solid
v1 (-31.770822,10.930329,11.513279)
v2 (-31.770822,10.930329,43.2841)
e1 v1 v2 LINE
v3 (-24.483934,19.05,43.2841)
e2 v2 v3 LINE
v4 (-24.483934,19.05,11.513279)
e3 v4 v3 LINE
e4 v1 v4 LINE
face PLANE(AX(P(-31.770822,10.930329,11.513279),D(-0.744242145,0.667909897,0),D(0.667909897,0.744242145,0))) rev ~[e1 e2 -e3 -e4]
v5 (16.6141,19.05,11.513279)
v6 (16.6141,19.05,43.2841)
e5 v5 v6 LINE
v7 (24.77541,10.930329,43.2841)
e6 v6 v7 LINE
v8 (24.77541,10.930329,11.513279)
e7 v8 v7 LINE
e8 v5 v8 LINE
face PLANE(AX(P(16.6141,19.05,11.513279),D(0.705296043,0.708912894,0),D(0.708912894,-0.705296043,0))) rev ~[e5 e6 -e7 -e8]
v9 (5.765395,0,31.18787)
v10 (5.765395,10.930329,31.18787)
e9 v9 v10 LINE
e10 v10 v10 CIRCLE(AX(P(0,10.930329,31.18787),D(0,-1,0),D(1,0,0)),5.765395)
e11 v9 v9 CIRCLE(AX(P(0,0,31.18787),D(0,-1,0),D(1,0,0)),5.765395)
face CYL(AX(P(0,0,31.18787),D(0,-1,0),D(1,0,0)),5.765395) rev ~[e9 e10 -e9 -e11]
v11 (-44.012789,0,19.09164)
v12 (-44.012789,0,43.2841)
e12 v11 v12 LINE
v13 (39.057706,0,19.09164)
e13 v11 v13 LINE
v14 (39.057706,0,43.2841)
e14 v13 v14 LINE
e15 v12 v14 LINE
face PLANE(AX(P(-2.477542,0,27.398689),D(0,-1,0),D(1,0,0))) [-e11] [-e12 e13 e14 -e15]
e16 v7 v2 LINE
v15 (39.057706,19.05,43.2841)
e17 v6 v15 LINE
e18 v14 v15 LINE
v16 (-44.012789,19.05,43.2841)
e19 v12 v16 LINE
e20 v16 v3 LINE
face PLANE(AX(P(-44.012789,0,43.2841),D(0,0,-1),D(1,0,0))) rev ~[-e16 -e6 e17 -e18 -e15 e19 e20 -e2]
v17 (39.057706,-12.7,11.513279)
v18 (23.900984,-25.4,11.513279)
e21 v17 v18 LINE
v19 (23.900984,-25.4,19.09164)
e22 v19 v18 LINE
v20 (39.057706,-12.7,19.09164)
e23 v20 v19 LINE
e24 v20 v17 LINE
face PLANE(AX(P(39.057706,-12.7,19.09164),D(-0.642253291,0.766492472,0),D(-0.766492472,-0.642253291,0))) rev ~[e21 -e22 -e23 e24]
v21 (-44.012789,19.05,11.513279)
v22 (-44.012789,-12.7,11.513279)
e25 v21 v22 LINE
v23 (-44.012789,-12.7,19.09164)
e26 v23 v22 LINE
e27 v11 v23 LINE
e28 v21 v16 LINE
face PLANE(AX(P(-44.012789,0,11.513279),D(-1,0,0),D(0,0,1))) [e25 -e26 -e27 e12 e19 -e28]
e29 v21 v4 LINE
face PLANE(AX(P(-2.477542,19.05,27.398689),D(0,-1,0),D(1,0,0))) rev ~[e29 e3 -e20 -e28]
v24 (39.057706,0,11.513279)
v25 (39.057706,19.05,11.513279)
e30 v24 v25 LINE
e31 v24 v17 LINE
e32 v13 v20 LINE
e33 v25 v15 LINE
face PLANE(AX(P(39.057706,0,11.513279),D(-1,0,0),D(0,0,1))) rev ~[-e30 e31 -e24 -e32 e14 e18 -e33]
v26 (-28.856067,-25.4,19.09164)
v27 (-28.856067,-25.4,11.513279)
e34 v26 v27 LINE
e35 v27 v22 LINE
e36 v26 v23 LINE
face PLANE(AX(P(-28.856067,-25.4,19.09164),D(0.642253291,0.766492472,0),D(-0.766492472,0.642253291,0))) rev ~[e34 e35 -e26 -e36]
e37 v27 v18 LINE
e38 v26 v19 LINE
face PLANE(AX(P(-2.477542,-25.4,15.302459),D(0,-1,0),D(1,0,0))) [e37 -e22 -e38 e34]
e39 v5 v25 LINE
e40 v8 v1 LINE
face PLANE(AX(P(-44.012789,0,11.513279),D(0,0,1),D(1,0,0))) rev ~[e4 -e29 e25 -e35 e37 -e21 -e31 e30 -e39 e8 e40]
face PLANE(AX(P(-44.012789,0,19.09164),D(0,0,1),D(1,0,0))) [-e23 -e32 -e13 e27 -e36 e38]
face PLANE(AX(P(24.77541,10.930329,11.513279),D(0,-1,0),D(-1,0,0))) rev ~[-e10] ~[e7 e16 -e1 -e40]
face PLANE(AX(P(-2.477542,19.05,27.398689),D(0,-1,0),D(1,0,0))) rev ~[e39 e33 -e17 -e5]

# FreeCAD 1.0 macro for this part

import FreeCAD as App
import Part
import Sketcher
from FreeCAD import Vector
Q = App.Units.Quantity

doc = App.newDocument("Part")
params = doc.addObject("Spreadsheet::Sheet", "Params")
for row, (alias, value) in enumerate([
    ("pad1_length", "0.75 in"),
    ("pocket1_length", "1.38 in"),
    ("pad2_length", "1 in"),
    ("sketch4_height", "0.5 in"),
    ("pocket2_length", "1 in"),
    ("pocket3_length", "1 in"),
], start=1):
    params.set(f"A{row}", alias)
    params.set(f"B{row}", "=" + value)
    params.setAlias(f"B{row}", alias)

body = doc.addObject("PartDesign::Body", "Body")

# Sketch on XZ plane
sketch1 = body.newObject("Sketcher::SketchObject", "Sketch")
sketch1.AttachmentSupport = (doc.getObject("XZ_Plane"), [""])
sketch1.MapMode = "FlatFace"
sketch1.addGeometry([
    Part.LineSegment(Vector(-44.012789, 43.2841, 0), Vector(-44.012789, 11.513279, 0)),
    Part.LineSegment(Vector(-44.012789, 11.513279, 0), Vector(39.057706, 11.513279, 0)),
    Part.LineSegment(Vector(39.057706, 11.513279, 0), Vector(39.057706, 43.2841, 0)),
    Part.LineSegment(Vector(39.057706, 43.2841, 0), Vector(-44.012789, 43.2841, 0)),
], False)
sketch1.addConstraint([
    Sketcher.Constraint("Coincident", 0, 2, 1, 1),
    Sketcher.Constraint("Coincident", 1, 2, 2, 1),
    Sketcher.Constraint("Coincident", 2, 2, 3, 1),
    Sketcher.Constraint("Coincident", 3, 2, 0, 1),
    Sketcher.Constraint("Vertical", 0),
    Sketcher.Constraint("Horizontal", 1),
    Sketcher.Constraint("Vertical", 2),
    Sketcher.Constraint("Horizontal", 3),
    Sketcher.Constraint("DistanceY", 0, 2, 0, 1, Q("31.770821 mm")),
    Sketcher.Constraint("DistanceY", -1, 1, 2, 2, Q("43.2841 mm")),
    Sketcher.Constraint("DistanceX", 1, 1, 1, 2, Q("83.070494 mm")),
    Sketcher.Constraint("DistanceX", 0, 2, -1, 1, Q("44.012789 mm")),
])
pad1 = body.newObject("PartDesign::Pad", "Pad")
pad1.Profile = sketch1
pad1.setExpression("Length", "Params.pad1_length")
pad1.Reversed = True

# Sketch on XY plane
sketch2 = body.newObject("Sketcher::SketchObject", "Sketch001")
sketch2.AttachmentSupport = (doc.getObject("XY_Plane"), [""])
sketch2.MapMode = "FlatFace"
sketch2.AttachmentOffset = App.Placement(Vector(0, 0, 11.513279), App.Rotation())
sketch2.addGeometry([
    Part.LineSegment(Vector(-31.770822, 10.930329, 0), Vector(-24.483934, 19.05, 0)),
    Part.LineSegment(Vector(-24.483934, 19.05, 0), Vector(16.6141, 19.05, 0)),
    Part.LineSegment(Vector(16.6141, 19.05, 0), Vector(24.77541, 10.930329, 0)),
    Part.LineSegment(Vector(24.77541, 10.930329, 0), Vector(-31.770822, 10.930329, 0)),
], False)
sketch2.addConstraint([
    Sketcher.Constraint("Coincident", 0, 2, 1, 1),
    Sketcher.Constraint("Coincident", 1, 2, 2, 1),
    Sketcher.Constraint("Coincident", 2, 2, 3, 1),
    Sketcher.Constraint("Coincident", 3, 2, 0, 1),
    Sketcher.Constraint("Horizontal", 1),
    Sketcher.Constraint("Horizontal", 3),
    Sketcher.Constraint("DistanceY", -1, 1, 0, 2, Q("0.75 in")),
    Sketcher.Constraint("DistanceX", 3, 2, 3, 1, Q("56.546232 mm")),
    Sketcher.Constraint("DistanceX", -1, 1, 1, 2, Q("16.6141 mm")),
    Sketcher.Constraint("Distance", 2, Q("11.51243 mm")),
    Sketcher.Constraint("DistanceX", 1, 1, 1, 2, Q("41.098034 mm")),
    Sketcher.Constraint("DistanceX", -1, 1, 2, 2, Q("24.77541 mm")),
])
pocket1 = body.newObject("PartDesign::Pocket", "Pocket")
pocket1.Profile = sketch2
pocket1.setExpression("Length", "Params.pocket1_length")
pocket1.Reversed = True

# Sketch on XZ plane
sketch3 = body.newObject("Sketcher::SketchObject", "Sketch002")
sketch3.AttachmentSupport = (doc.getObject("XZ_Plane"), [""])
sketch3.MapMode = "FlatFace"
sketch3.addGeometry([
    Part.LineSegment(Vector(-44.012789, 19.09164, 0), Vector(-44.012789, 11.513279, 0)),
    Part.LineSegment(Vector(-44.012789, 11.513279, 0), Vector(39.057706, 11.513279, 0)),
    Part.LineSegment(Vector(39.057706, 11.513279, 0), Vector(39.057706, 19.09164, 0)),
    Part.LineSegment(Vector(39.057706, 19.09164, 0), Vector(-44.012789, 19.09164, 0)),
], False)
sketch3.addConstraint([
    Sketcher.Constraint("Coincident", 0, 2, 1, 1),
    Sketcher.Constraint("Coincident", 1, 2, 2, 1),
    Sketcher.Constraint("Coincident", 2, 2, 3, 1),
    Sketcher.Constraint("Coincident", 3, 2, 0, 1),
    Sketcher.Constraint("Vertical", 0),
    Sketcher.Constraint("Horizontal", 1),
    Sketcher.Constraint("Vertical", 2),
    Sketcher.Constraint("Horizontal", 3),
    Sketcher.Constraint("DistanceY", 0, 2, 0, 1, Q("7.578361 mm")),
    Sketcher.Constraint("DistanceX", 1, 1, 1, 2, Q("83.070494 mm")),
    Sketcher.Constraint("DistanceX", 0, 2, -1, 1, Q("44.012789 mm")),
    Sketcher.Constraint("DistanceY", -1, 1, 0, 2, Q("11.513279 mm")),
])
pad2 = body.newObject("PartDesign::Pad", "Pad001")
pad2.Profile = sketch3
pad2.setExpression("Length", "Params.pad2_length")

# Sketch on XY plane
sketch4 = body.newObject("Sketcher::SketchObject", "Sketch003")
sketch4.AttachmentSupport = (doc.getObject("XY_Plane"), [""])
sketch4.MapMode = "FlatFace"
sketch4.AttachmentOffset = App.Placement(Vector(0, 0, 19.09164), App.Rotation())
sketch4.addGeometry([
    Part.LineSegment(Vector(39.057706, -25.4, 0), Vector(39.057706, -12.7, 0)),  # 0
    Part.LineSegment(Vector(39.057706, -12.7, 0), Vector(23.900984, -25.4, 0)),  # 1
    Part.LineSegment(Vector(23.900984, -25.4, 0), Vector(39.057706, -25.4, 0)),  # 2
    Part.LineSegment(Vector(-44.012789, -25.4, 0), Vector(-28.856067, -25.4, 0)),  # 3
    Part.LineSegment(Vector(-28.856067, -25.4, 0), Vector(-44.012789, -12.7, 0)),  # 4
    Part.LineSegment(Vector(-44.012789, -12.7, 0), Vector(-44.012789, -25.4, 0)),  # 5
], False)
sketch4.addConstraint([
    Sketcher.Constraint("Coincident", 0, 2, 1, 1),
    Sketcher.Constraint("Coincident", 1, 2, 2, 1),
    Sketcher.Constraint("Coincident", 2, 2, 0, 1),
    Sketcher.Constraint("Coincident", 3, 2, 4, 1),
    Sketcher.Constraint("Coincident", 4, 2, 5, 1),
    Sketcher.Constraint("Coincident", 5, 2, 3, 1),
    Sketcher.Constraint("Vertical", 0),
    Sketcher.Constraint("Horizontal", 2),
    Sketcher.Constraint("Horizontal", 3),
    Sketcher.Constraint("Vertical", 5),
    Sketcher.Constraint("Horizontal", 2, 2, 3, 2),
    Sketcher.Constraint("Horizontal", 0, 2, 4, 2),
    Sketcher.Constraint("Equal", 2, 3),
    Sketcher.Constraint("DistanceY", 0, 1, 0, 2, Q("0.5 in")),
    Sketcher.Constraint("DistanceY", 1, 2, -1, 1, Q("1 in")),
    Sketcher.Constraint("DistanceX", 2, 1, 2, 2, Q("15.156722 mm")),
    Sketcher.Constraint("DistanceX", 4, 2, -1, 1, Q("44.012789 mm")),
    Sketcher.Constraint("DistanceX", 3, 2, 1, 2, Q("52.757051 mm")),
])
sketch4.setExpression("Constraints[13]", "Params.sketch4_height")
pocket2 = body.newObject("PartDesign::Pocket", "Pocket001")
pocket2.Profile = sketch4
pocket2.setExpression("Length", "Params.pocket2_length")

# Sketch on XZ plane
sketch5 = body.newObject("Sketcher::SketchObject", "Sketch004")
sketch5.AttachmentSupport = (doc.getObject("XZ_Plane"), [""])
sketch5.MapMode = "FlatFace"
sketch5.addGeometry(Part.Circle(Vector(0, 31.18787, 0), Vector(0, 0, 1), 5.765395), False)
sketch5.addConstraint([
    Sketcher.Constraint("PointOnObject", 0, 3, -2),
    Sketcher.Constraint("Diameter", 0, Q("11.53079 mm")),
    Sketcher.Constraint("DistanceY", -1, 1, 0, 3, Q("31.18787 mm")),
])
pocket3 = body.newObject("PartDesign::Pocket", "Pocket002")
pocket3.Profile = sketch5
pocket3.setExpression("Length", "Params.pocket3_length")

doc.recompute()
